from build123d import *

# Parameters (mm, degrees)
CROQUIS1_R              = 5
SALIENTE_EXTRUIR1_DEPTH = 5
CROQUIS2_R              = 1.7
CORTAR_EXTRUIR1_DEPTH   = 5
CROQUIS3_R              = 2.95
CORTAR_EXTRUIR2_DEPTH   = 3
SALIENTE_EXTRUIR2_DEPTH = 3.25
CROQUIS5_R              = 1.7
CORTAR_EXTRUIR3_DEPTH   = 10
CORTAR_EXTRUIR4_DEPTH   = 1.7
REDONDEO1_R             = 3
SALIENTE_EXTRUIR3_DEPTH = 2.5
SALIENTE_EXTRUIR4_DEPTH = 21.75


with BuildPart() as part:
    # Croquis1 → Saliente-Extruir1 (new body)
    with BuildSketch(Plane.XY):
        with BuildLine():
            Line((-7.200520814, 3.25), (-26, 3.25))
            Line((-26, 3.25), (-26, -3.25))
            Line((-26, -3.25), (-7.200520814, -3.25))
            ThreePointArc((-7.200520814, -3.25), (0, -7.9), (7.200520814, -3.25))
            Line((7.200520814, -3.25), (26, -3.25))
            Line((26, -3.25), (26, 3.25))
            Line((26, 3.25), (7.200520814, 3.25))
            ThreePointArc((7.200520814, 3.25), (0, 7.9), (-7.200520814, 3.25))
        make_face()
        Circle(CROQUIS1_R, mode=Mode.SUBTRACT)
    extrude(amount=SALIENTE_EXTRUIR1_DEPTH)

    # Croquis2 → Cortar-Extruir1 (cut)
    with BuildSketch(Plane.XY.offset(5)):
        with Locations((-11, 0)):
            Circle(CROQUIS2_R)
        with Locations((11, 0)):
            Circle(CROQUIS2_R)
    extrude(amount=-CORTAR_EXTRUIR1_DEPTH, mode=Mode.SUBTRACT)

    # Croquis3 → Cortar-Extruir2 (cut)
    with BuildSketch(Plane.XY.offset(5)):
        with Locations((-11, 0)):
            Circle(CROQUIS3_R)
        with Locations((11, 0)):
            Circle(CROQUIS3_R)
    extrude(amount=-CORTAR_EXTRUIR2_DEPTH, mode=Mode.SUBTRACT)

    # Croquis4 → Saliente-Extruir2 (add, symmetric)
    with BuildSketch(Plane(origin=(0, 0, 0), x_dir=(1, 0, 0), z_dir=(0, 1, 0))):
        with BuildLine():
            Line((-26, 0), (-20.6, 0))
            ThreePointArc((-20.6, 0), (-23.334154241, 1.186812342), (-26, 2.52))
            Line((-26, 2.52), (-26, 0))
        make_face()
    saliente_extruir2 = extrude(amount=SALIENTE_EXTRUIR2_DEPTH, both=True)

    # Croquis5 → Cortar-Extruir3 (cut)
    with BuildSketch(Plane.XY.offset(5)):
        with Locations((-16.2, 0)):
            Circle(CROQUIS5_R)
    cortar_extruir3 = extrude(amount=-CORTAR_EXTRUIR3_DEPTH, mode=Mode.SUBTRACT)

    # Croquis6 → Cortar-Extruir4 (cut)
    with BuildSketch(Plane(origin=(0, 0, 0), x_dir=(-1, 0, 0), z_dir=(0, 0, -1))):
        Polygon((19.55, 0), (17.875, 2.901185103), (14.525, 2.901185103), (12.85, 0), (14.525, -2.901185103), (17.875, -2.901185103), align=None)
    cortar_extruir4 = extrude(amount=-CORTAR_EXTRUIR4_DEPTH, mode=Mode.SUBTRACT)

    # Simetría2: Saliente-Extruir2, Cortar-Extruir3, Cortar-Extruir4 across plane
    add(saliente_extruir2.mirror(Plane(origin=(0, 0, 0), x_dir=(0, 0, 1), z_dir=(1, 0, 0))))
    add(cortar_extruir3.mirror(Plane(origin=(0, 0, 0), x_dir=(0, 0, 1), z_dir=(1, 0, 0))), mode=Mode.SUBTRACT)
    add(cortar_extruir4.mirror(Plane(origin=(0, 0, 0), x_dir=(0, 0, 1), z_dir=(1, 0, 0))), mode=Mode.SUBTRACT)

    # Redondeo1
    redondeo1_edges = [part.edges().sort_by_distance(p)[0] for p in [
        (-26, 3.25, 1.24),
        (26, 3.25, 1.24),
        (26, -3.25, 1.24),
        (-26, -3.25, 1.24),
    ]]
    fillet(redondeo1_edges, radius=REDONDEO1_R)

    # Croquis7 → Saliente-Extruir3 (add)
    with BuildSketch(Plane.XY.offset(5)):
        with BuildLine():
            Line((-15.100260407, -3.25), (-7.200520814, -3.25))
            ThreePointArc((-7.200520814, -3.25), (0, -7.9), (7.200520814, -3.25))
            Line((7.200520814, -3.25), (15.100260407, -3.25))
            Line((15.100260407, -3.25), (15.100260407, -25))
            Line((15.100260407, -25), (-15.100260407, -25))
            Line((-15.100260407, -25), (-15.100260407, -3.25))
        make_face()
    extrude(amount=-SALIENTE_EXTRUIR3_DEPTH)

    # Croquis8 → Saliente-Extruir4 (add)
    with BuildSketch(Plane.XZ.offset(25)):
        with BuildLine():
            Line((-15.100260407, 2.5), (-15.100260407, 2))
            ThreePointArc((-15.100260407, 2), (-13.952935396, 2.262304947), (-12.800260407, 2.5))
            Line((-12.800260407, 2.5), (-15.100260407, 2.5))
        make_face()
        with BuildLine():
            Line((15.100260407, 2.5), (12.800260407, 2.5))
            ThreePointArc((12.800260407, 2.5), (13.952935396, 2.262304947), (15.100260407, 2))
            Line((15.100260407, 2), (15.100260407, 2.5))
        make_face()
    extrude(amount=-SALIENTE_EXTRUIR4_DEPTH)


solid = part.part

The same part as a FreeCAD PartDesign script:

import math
import FreeCAD as App
import Part
import Sketcher
from FreeCAD import Vector
Q = App.Units.Quantity


def edges_at(feature, points):
    """Names of the edges that pass closest to the given points."""
    edges = feature.Shape.Edges
    near = lambda p: min(range(len(edges)), key=lambda i: edges[i].distToShape(Part.Vertex(*p))[0])
    return sorted({f"Edge{near(p) + 1}" for p in points})

doc = App.newDocument("Part")
body = doc.addObject("PartDesign::Body", "Body")

# Sketch on XY plane
sketch1 = body.newObject("Sketcher::SketchObject", "Sketch")
sketch1.AttachmentSupport = (doc.getObject("XY_Plane"), [""])
sketch1.MapMode = "FlatFace"
sketch1.addGeometry([
    Part.LineSegment(Vector(-7, 3, 0), Vector(-26, 3, 0)),  # 0
    Part.LineSegment(Vector(-26, 3, 0), Vector(-26, -3, 0)),  # 1
    Part.LineSegment(Vector(-26, -3, 0), Vector(-7, -3, 0)),  # 2
    Part.ArcOfCircle(Part.Circle(Vector(0, 0, 0), Vector(0, 0, 1), 8), math.radians(-156), math.radians(-24)),  # 3
    Part.LineSegment(Vector(7, -3, 0), Vector(26, -3, 0)),  # 4
    Part.LineSegment(Vector(26, -3, 0), Vector(26, 3, 0)),  # 5
    Part.LineSegment(Vector(26, 3, 0), Vector(7, 3, 0)),  # 6
    Part.ArcOfCircle(Part.Circle(Vector(0, 0, 0), Vector(0, 0, 1), 8), math.radians(24), math.radians(156)),  # 7
    Part.Circle(Vector(0, 0, 0), Vector(0, 0, 1), 5),  # 8
], False)
sketch1.addConstraint([
    Sketcher.Constraint("Coincident", 0, 2, 1, 1),
    Sketcher.Constraint("Coincident", 1, 2, 2, 1),
    Sketcher.Constraint("Coincident", 2, 2, 3, 1),
    Sketcher.Constraint("Coincident", 3, 2, 4, 1),
    Sketcher.Constraint("Coincident", 4, 2, 5, 1),
    Sketcher.Constraint("Coincident", 5, 2, 6, 1),
    Sketcher.Constraint("Coincident", 6, 2, 7, 1),
    Sketcher.Constraint("Coincident", 7, 2, 0, 1),
    Sketcher.Constraint("Horizontal", 0),
    Sketcher.Constraint("Vertical", 1),
    Sketcher.Constraint("Horizontal", 2),
    Sketcher.Constraint("Horizontal", 4),
    Sketcher.Constraint("Vertical", 5),
    Sketcher.Constraint("Horizontal", 6),
    Sketcher.Constraint("Coincident", 3, 3, -1, 1),
    Sketcher.Constraint("Coincident", 7, 3, -1, 1),
    Sketcher.Constraint("Coincident", 8, 3, -1, 1),
    Sketcher.Constraint("Equal", 3, 7),
    Sketcher.Constraint("Symmetric", 0, 2, 4, 2, -1, 1),
    Sketcher.Constraint("Horizontal", 2, 2, 3, 2),
    Sketcher.Constraint("Horizontal", 0, 2, 5, 2),
    Sketcher.Constraint("Diameter", 8, 10.0),
    Sketcher.Constraint("Radius", 3, 7.9),
    Sketcher.Constraint("DistanceY", 1, 2, 1, 1, 6.5),
    Sketcher.Constraint("DistanceX", 0, 2, -1, 1, 26.0),
])
pad1 = body.newObject("PartDesign::Pad", "Pad")
pad1.Profile = sketch1
pad1.Length = 5

# Sketch on XY plane
sketch2 = body.newObject("Sketcher::SketchObject", "Sketch001")
sketch2.AttachmentSupport = (doc.getObject("XY_Plane"), [""])
sketch2.MapMode = "FlatFace"
sketch2.AttachmentOffset = App.Placement(Vector(0, 0, 5), App.Rotation())
sketch2.addGeometry([
    Part.Circle(Vector(-11, 0, 0), Vector(0, 0, 1), 1.7),
    Part.Circle(Vector(11, 0, 0), Vector(0, 0, 1), 1.7),
], False)
sketch2.addConstraint([
    Sketcher.Constraint("Equal", 0, 1),
    Sketcher.Constraint("Symmetric", 0, 3, 1, 3, -1, 1),
    Sketcher.Constraint("PointOnObject", 0, 3, -1),
    Sketcher.Constraint("Diameter", 0, 3.4),
    Sketcher.Constraint("DistanceX", 0, 3, -1, 1, 11.0),
])
pocket1 = body.newObject("PartDesign::Pocket", "Pocket")
pocket1.Profile = sketch2
pocket1.Length = 5

# Sketch on XY plane
sketch3 = body.newObject("Sketcher::SketchObject", "Sketch002")
sketch3.AttachmentSupport = (doc.getObject("XY_Plane"), [""])
sketch3.MapMode = "FlatFace"
sketch3.AttachmentOffset = App.Placement(Vector(0, 0, 5), App.Rotation())
sketch3.addGeometry([
    Part.Circle(Vector(-11, 0, 0), Vector(0, 0, 1), 3),
    Part.Circle(Vector(11, 0, 0), Vector(0, 0, 1), 3),
], False)
sketch3.addConstraint([
    Sketcher.Constraint("Equal", 0, 1),
    Sketcher.Constraint("Symmetric", 0, 3, 1, 3, -1, 1),
    Sketcher.Constraint("PointOnObject", 0, 3, -1),
    Sketcher.Constraint("Diameter", 0, 5.9),
    Sketcher.Constraint("DistanceX", 0, 3, -1, 1, 11.0),
])
pocket2 = body.newObject("PartDesign::Pocket", "Pocket001")
pocket2.Profile = sketch3
pocket2.Length = 3

# Sketch on XZ plane
sketch4 = body.newObject("Sketcher::SketchObject", "Sketch003")
sketch4.AttachmentSupport = (doc.getObject("XZ_Plane"), [""])
sketch4.MapMode = "FlatFace"
sketch4.addGeometry([
    Part.LineSegment(Vector(-26, 0, 0), Vector(-20.6, 0, 0)),
    Part.ArcOfCircle(Part.Circle(Vector(-0.1, -51, 0), Vector(0, 0, 1), 55), math.radians(111.91), math.radians(118.12)),
    Part.LineSegment(Vector(-26, -2.5, 0), Vector(-26, 0, 0)),
], False)
sketch4.addConstraint([
    Sketcher.Constraint("Coincident", 0, 2, 1, 1),
    Sketcher.Constraint("Coincident", 1, 2, 2, 1),
    Sketcher.Constraint("Coincident", 2, 2, 0, 1),
    Sketcher.Constraint("Horizontal", 0),
    Sketcher.Constraint("Vertical", 2),
    Sketcher.Constraint("PointOnObject", 0, 2, -1),
    Sketcher.Constraint("Radius", 1, 55.0),
    Sketcher.Constraint("DistanceX", 0, 1, 0, 2, 5.4),
    Sketcher.Constraint("DistanceX", 1, 2, -1, 1, 26.0),
    Sketcher.Constraint("DistanceY", 2, 1, 2, 2, 2.52),
])
pad2 = body.newObject("PartDesign::Pad", "Pad001")
pad2.Profile = sketch4
pad2.Length = 6.5
pad2.Midplane = True

# Sketch on XY plane
sketch5 = body.newObject("Sketcher::SketchObject", "Sketch004")
sketch5.AttachmentSupport = (doc.getObject("XY_Plane"), [""])
sketch5.MapMode = "FlatFace"
sketch5.AttachmentOffset = App.Placement(Vector(0, 0, 5), App.Rotation())
sketch5.addGeometry(Part.Circle(Vector(-16.2, 0, 0), Vector(0, 0, 1), 1.7), False)
sketch5.addConstraint([
    Sketcher.Constraint("PointOnObject", 0, 3, -1),
    Sketcher.Constraint("Diameter", 0, 3.4),
    Sketcher.Constraint("DistanceX", 0, 3, -1, 1, 16.2),
])
pocket3 = body.newObject("PartDesign::Pocket", "Pocket002")
pocket3.Profile = sketch5
pocket3.Length = 10

# Sketch on XY plane
sketch6 = body.newObject("Sketcher::SketchObject", "Sketch005")
sketch6.AttachmentSupport = (doc.getObject("XY_Plane"), [""])
sketch6.MapMode = "FlatFace"
sketch6.addGeometry([
    Part.LineSegment(Vector(-19.6, 0, 0), Vector(-17.9, 2.9, 0)),  # 0
    Part.LineSegment(Vector(-17.9, 2.9, 0), Vector(-14.5, 2.9, 0)),  # 1
    Part.LineSegment(Vector(-14.5, 2.9, 0), Vector(-12.8, 0, 0)),  # 2
    Part.LineSegment(Vector(-12.8, 0, 0), Vector(-14.5, -2.9, 0)),  # 3
    Part.LineSegment(Vector(-14.5, -2.9, 0), Vector(-17.9, -2.9, 0)),  # 4
    Part.LineSegment(Vector(-17.9, -2.9, 0), Vector(-19.6, 0, 0)),  # 5
], False)
sketch6.addConstraint([
    Sketcher.Constraint("Coincident", 0, 2, 1, 1),
    Sketcher.Constraint("Coincident", 1, 2, 2, 1),
    Sketcher.Constraint("Coincident", 2, 2, 3, 1),
    Sketcher.Constraint("Coincident", 3, 2, 4, 1),
    Sketcher.Constraint("Coincident", 4, 2, 5, 1),
    Sketcher.Constraint("Coincident", 5, 2, 0, 1),
    Sketcher.Constraint("Horizontal", 1),
    Sketcher.Constraint("Horizontal", 4),
    Sketcher.Constraint("Symmetric", 1, 2, 3, 2, -1),
    Sketcher.Constraint("PointOnObject", 2, 2, -1),
    Sketcher.Constraint("PointOnObject", 5, 2, -1),
    Sketcher.Constraint("Parallel", 0, 3),
    Sketcher.Constraint("Parallel", 2, 5),
    Sketcher.Constraint("Angle", 0, Q("60 deg")),
    Sketcher.Constraint("DistanceX", 1, 1, 1, 2, 3.35),
    Sketcher.Constraint("DistanceX", 5, 2, 2, 2, 6.7),
    Sketcher.Constraint("DistanceX", 2, 2, -1, 1, 12.85),
])
pocket4 = body.newObject("PartDesign::Pocket", "Pocket003")
pocket4.Profile = sketch6
pocket4.Length = 1.7
pocket4.Reversed = True
doc.recompute()

mirrored = body.newObject("PartDesign::Mirrored", "Mirrored")
mirrored.Originals = [pad2, pocket3, pocket4]
mirrored.MirrorPlane = (doc.getObject("YZ_Plane"), [""])
body.Tip = mirrored
doc.recompute()

fillet = body.newObject("PartDesign::Fillet", "Fillet")
fillet.Base = (mirrored, edges_at(mirrored, [
    (-26, 3.25, 1.24),
    (26, 3.25, 1.24),
    (26, -3.25, 1.24),
    (-26, -3.25, 1.24),
]))
fillet.Radius = 3

# Sketch on XY plane
sketch7 = body.newObject("Sketcher::SketchObject", "Sketch006")
sketch7.AttachmentSupport = (doc.getObject("XY_Plane"), [""])
sketch7.MapMode = "FlatFace"
sketch7.AttachmentOffset = App.Placement(Vector(0, 0, 5), App.Rotation())
sketch7.addGeometry([
    Part.LineSegment(Vector(-7, -3, 0), Vector(-15, -3, 0)),  # 0
    Part.LineSegment(Vector(-15, -3, 0), Vector(-15, -25, 0)),  # 1
    Part.LineSegment(Vector(-15, -25, 0), Vector(15, -25, 0)),  # 2
    Part.LineSegment(Vector(15, -25, 0), Vector(15, -3, 0)),  # 3
    Part.LineSegment(Vector(15, -3, 0), Vector(7, -3, 0)),  # 4
    Part.ArcOfCircle(Part.Circle(Vector(0, 0, 0), Vector(0, 0, 1), 8), math.radians(-156), math.radians(-24)),  # 5
], False)
sketch7.addConstraint([
    Sketcher.Constraint("Coincident", 0, 2, 1, 1),
    Sketcher.Constraint("Coincident", 1, 2, 2, 1),
    Sketcher.Constraint("Coincident", 2, 2, 3, 1),
    Sketcher.Constraint("Coincident", 3, 2, 4, 1),
    Sketcher.Constraint("Coincident", 4, 2, 5, 2),
    Sketcher.Constraint("Coincident", 5, 1, 0, 1),
    Sketcher.Constraint("Horizontal", 0),
    Sketcher.Constraint("Vertical", 1),
    Sketcher.Constraint("Horizontal", 2),
    Sketcher.Constraint("Vertical", 3),
    Sketcher.Constraint("Horizontal", 4),
    Sketcher.Constraint("Coincident", 5, 3, -1, 1),
    Sketcher.Constraint("Symmetric", 0, 2, 3, 2, -2),
    Sketcher.Constraint("Radius", 5, 7.9),
    Sketcher.Constraint("DistanceY", 1, 2, -1, 1, 25.0),
    Sketcher.Constraint("DistanceY", 1, 2, 1, 1, 21.75),
    Sketcher.Constraint("DistanceX", 0, 2, 0, 1, 7.89974),
])
pad3 = body.newObject("PartDesign::Pad", "Pad002")
pad3.Profile = sketch7
pad3.Length = 2.5
pad3.Reversed = True

# Sketch on XZ plane
sketch8 = body.newObject("Sketcher::SketchObject", "Sketch007")
sketch8.AttachmentSupport = (doc.getObject("XZ_Plane"), [""])
sketch8.MapMode = "FlatFace"
sketch8.AttachmentOffset = App.Placement(Vector(0, 0, 25), App.Rotation())
sketch8.addGeometry([
    Part.LineSegment(Vector(-15.1, 2.5, 0), Vector(-15.1, 2, 0)),  # 0
    Part.ArcOfCircle(Part.Circle(Vector(-2.3, -51.5, 0), Vector(0, 0, 1), 55), math.radians(101.04), math.radians(103.49)),  # 1
    Part.LineSegment(Vector(-12.8, 2.5, 0), Vector(-15.1, 2.5, 0)),  # 2
    Part.LineSegment(Vector(15.1, 2.5, 0), Vector(12.8, 2.5, 0)),  # 3
    Part.ArcOfCircle(Part.Circle(Vector(2.3, -51.5, 0), Vector(0, 0, 1), 55), math.radians(76.51), math.radians(78.96)),  # 4
    Part.LineSegment(Vector(15.1, 2, 0), Vector(15.1, 2.5, 0)),  # 5
], False)
sketch8.addConstraint([
    Sketcher.Constraint("Coincident", 0, 2, 1, 2),
    Sketcher.Constraint("Coincident", 1, 1, 2, 1),
    Sketcher.Constraint("Coincident", 2, 2, 0, 1),
    Sketcher.Constraint("Coincident", 3, 2, 4, 2),
    Sketcher.Constraint("Coincident", 4, 1, 5, 1),
    Sketcher.Constraint("Coincident", 5, 2, 3, 1),
    Sketcher.Constraint("Vertical", 0),
    Sketcher.Constraint("Horizontal", 2),
    Sketcher.Constraint("Horizontal", 3),
    Sketcher.Constraint("Vertical", 5),
    Sketcher.Constraint("Equal", 1, 4),
    Sketcher.Constraint("Symmetric", 1, 3, 4, 3, -2),
    Sketcher.Constraint("Symmetric", 2, 2, 5, 2, -2),
    Sketcher.Constraint("Radius", 1, 55.000001),
    Sketcher.Constraint("DistanceX", 2, 2, 2, 1, 2.3),
    Sketcher.Constraint("DistanceY", 0, 2, 0, 1, 0.5),
    Sketcher.Constraint("DistanceY", -1, 1, 0, 2, 2.0),
    Sketcher.Constraint("DistanceX", 0, 2, -1, 1, 15.10026),
])
pad4 = body.newObject("PartDesign::Pad", "Pad003")
pad4.Profile = sketch8
pad4.Length = 21.75
pad4.Reversed = True

doc.recompute()
